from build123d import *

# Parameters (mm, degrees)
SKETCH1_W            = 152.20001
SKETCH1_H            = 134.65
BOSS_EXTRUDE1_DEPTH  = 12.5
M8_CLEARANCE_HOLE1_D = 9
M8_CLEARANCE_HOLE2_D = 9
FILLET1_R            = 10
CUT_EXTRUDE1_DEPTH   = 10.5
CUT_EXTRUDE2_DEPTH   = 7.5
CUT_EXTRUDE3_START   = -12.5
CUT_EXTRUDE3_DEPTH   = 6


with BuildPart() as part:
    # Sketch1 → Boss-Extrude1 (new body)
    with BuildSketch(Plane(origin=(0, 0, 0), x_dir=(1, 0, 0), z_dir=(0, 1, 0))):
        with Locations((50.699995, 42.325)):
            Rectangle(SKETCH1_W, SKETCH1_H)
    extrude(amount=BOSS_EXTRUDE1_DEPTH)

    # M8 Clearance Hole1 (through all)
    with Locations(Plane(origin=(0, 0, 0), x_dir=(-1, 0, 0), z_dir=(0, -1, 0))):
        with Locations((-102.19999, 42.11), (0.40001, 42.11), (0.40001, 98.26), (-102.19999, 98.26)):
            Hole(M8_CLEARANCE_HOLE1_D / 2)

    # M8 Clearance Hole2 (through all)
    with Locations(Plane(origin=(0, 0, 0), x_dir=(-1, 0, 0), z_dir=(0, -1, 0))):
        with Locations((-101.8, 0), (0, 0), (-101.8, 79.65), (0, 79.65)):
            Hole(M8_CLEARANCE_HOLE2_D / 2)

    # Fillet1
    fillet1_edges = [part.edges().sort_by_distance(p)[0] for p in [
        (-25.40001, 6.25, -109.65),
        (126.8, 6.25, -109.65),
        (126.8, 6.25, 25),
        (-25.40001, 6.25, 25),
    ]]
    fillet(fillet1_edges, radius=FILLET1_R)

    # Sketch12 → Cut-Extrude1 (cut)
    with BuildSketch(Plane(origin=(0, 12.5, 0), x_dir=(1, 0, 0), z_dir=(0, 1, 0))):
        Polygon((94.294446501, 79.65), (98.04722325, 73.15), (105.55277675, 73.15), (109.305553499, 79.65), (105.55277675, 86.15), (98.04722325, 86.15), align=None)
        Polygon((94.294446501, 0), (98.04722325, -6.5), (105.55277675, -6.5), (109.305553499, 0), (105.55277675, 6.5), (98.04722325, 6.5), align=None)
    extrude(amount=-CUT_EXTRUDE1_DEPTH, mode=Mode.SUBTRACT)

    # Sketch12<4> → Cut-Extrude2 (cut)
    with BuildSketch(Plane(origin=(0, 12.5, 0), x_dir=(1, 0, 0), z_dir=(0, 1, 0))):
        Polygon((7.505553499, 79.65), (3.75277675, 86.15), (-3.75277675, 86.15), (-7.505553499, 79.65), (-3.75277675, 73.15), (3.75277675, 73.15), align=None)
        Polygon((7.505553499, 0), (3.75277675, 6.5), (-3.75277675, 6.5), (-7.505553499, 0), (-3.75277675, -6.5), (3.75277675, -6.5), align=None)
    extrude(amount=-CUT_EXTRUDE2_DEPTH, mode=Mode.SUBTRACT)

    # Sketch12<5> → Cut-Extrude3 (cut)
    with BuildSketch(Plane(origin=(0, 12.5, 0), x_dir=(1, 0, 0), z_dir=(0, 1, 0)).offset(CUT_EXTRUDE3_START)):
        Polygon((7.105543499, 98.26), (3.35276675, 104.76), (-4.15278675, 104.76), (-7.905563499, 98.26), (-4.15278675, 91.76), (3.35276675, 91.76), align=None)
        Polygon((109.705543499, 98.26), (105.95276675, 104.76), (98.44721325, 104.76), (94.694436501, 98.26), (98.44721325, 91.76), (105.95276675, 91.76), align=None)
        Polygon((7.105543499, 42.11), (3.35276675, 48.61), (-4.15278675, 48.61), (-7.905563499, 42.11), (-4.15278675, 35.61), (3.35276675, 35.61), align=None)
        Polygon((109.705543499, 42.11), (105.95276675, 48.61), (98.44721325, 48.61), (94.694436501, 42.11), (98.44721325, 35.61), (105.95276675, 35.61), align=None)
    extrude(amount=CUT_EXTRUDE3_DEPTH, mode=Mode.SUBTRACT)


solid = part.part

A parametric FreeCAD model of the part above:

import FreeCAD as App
import Part
import Sketcher
Q = App.Units.Quantity


def edges_at(feature, points):
    """Names of the edges that pass closest to the given points."""
    edges = feature.Shape.Edges
    near = lambda p: min(range(len(edges)), key=lambda i: edges[i].distToShape(Part.Vertex(*p))[0])
    return sorted({f"Edge{near(p) + 1}" for p in points})

doc = App.newDocument("Part")
params = doc.addObject("Spreadsheet::Sheet", "Params")
for row, (alias, value) in enumerate([
    ("sketch1_height", "134.65 mm"),
    ("pad1_length", "12.5 mm"),
    ("sketch2_diameter", "9 mm"),
    ("hole_diameter", "9 mm"),
    ("sketch3_diameter", "9 mm"),
    ("hole2_diameter", "9 mm"),
    ("fillet_radius", "10 mm"),
    ("pocket1_length", "10.5 mm"),
    ("pocket2_length", "7.5 mm"),
    ("pocket3_length", "6 mm"),
], start=1):
    params.set(f"A{row}", alias)
    params.set(f"B{row}", "=" + value)
    params.setAlias(f"B{row}", alias)

body = doc.addObject("PartDesign::Body", "Body")

# Sketch on XZ plane
sketch1 = doc.addObject("Sketcher::SketchObject", "Sketch")
body.addObject(sketch1)
sketch1.AttachmentSupport = (doc.XZ_Plane, [""])
sketch1.MapMode = "FlatFace"
sketch1.addGeometry([
    Part.LineSegment(App.Vector(-25.40001, -109.65, 0), App.Vector(-25.40001, 25, 0)),
    Part.LineSegment(App.Vector(-25.40001, 25, 0), App.Vector(126.8, 25, 0)),
    Part.LineSegment(App.Vector(126.8, 25, 0), App.Vector(126.8, -109.65, 0)),
    Part.LineSegment(App.Vector(126.8, -109.65, 0), App.Vector(-25.40001, -109.65, 0)),
], False)
sketch1.addConstraint([
    Sketcher.Constraint("Coincident", 0, 2, 1, 1),
    Sketcher.Constraint("Coincident", 1, 2, 2, 1),
    Sketcher.Constraint("Coincident", 2, 2, 3, 1),
    Sketcher.Constraint("Coincident", 3, 2, 0, 1),
    Sketcher.Constraint("Vertical", 0),
    Sketcher.Constraint("Horizontal", 1),
    Sketcher.Constraint("Vertical", 2),
    Sketcher.Constraint("Horizontal", 3),
    Sketcher.Constraint("DistanceY", -1, 1, 0, 2, Q("25 mm")),
    Sketcher.Constraint("DistanceY", 0, 1, 0, 2, Q("134.65 mm")),
    Sketcher.Constraint("DistanceX", -1, 1, 1, 2, Q("126.8 mm")),
    Sketcher.Constraint("DistanceX", 1, 1, 1, 2, Q("152.20001 mm")),
])
sketch1.setExpression("Constraints[9]", "Params.sketch1_height")
pad1 = doc.addObject("PartDesign::Pad", "Pad")
body.addObject(pad1)
pad1.Profile = sketch1
pad1.setExpression("Length", "Params.pad1_length")
pad1.Reversed = True

# Sketch on XZ plane
sketch2 = doc.addObject("Sketcher::SketchObject", "Sketch001")
body.addObject(sketch2)
sketch2.AttachmentSupport = (doc.XZ_Plane, [""])
sketch2.MapMode = "FlatFace"
sketch2.addGeometry([
    Part.Circle(App.Vector(102.19999, -42.11, 0), App.Vector(0, 0, 1), 4.5),
    Part.Circle(App.Vector(-0.40001, -42.11, 0), App.Vector(0, 0, 1), 4.5),
    Part.Circle(App.Vector(-0.40001, -98.26, 0), App.Vector(0, 0, 1), 4.5),
    Part.Circle(App.Vector(102.19999, -98.26, 0), App.Vector(0, 0, 1), 4.5),
], False)
sketch2.addConstraint([
    Sketcher.Constraint("Equal", 0, 1),
    Sketcher.Constraint("Equal", 1, 2),
    Sketcher.Constraint("Equal", 2, 3),
    Sketcher.Constraint("Horizontal", 0, 3, 1, 3),
    Sketcher.Constraint("Horizontal", 2, 3, 3, 3),
    Sketcher.Constraint("Vertical", 1, 3, 2, 3),
    Sketcher.Constraint("Vertical", 0, 3, 3, 3),
    Sketcher.Constraint("Diameter", 0, Q("9 mm")),
    Sketcher.Constraint("DistanceX", 1, 3, 0, 3, Q("102.6 mm")),
    Sketcher.Constraint("DistanceY", 0, 3, -1, 1, Q("42.11 mm")),
    Sketcher.Constraint("DistanceY", 2, 3, -1, 1, Q("98.26 mm")),
    Sketcher.Constraint("DistanceX", -1, 1, 0, 3, Q("102.19999 mm")),
])
sketch2.setExpression("Constraints[7]", "Params.sketch2_diameter")
doc.recompute()
hole = doc.addObject("PartDesign::Hole", "Hole")
body.addObject(hole)
hole.Profile = sketch2
hole.ThreadType = "None"
hole.setExpression("Diameter", "Params.hole_diameter")
hole.DepthType = "ThroughAll"

# Sketch on XZ plane
sketch3 = doc.addObject("Sketcher::SketchObject", "Sketch002")
body.addObject(sketch3)
sketch3.AttachmentSupport = (doc.XZ_Plane, [""])
sketch3.MapMode = "FlatFace"
sketch3.addGeometry([
    Part.Circle(App.Vector(101.8, 0, 0), App.Vector(0, 0, 1), 4.5),
    Part.Circle(App.Vector(0, 0, 0), App.Vector(0, 0, 1), 4.5),
    Part.Circle(App.Vector(101.8, -79.65, 0), App.Vector(0, 0, 1), 4.5),
    Part.Circle(App.Vector(0, -79.65, 0), App.Vector(0, 0, 1), 4.5),
], False)
sketch3.addConstraint([
    Sketcher.Constraint("Coincident", 1, 3, -1, 1),
    Sketcher.Constraint("Equal", 0, 1),
    Sketcher.Constraint("Equal", 1, 2),
    Sketcher.Constraint("Equal", 2, 3),
    Sketcher.Constraint("PointOnObject", 0, 3, -1),
    Sketcher.Constraint("PointOnObject", 3, 3, -2),
    Sketcher.Constraint("Horizontal", 2, 3, 3, 3),
    Sketcher.Constraint("Vertical", 0, 3, 2, 3),
    Sketcher.Constraint("Diameter", 0, Q("9 mm")),
    Sketcher.Constraint("DistanceX", -1, 1, 0, 3, Q("101.8 mm")),
    Sketcher.Constraint("DistanceY", 2, 3, -1, 1, Q("79.65 mm")),
])
sketch3.setExpression("Constraints[8]", "Params.sketch3_diameter")
doc.recompute()
hole2 = doc.addObject("PartDesign::Hole", "Hole001")
body.addObject(hole2)
hole2.Profile = sketch3
hole2.ThreadType = "None"
hole2.setExpression("Diameter", "Params.hole2_diameter")
hole2.DepthType = "ThroughAll"
doc.recompute()

fillet = doc.addObject("PartDesign::Fillet", "Fillet")
body.addObject(fillet)
fillet.Base = (hole2, edges_at(hole2, [
    (-25.4, 6.25, -109.65),
    (126.8, 6.25, -109.65),
    (126.8, 6.25, 25),
    (-25.4, 6.25, 25),
]))
fillet.setExpression("Radius", "Params.fillet_radius")

# Sketch on XZ plane
sketch4 = doc.addObject("Sketcher::SketchObject", "Sketch003")
body.addObject(sketch4)
sketch4.AttachmentSupport = (doc.XZ_Plane, [""])
sketch4.MapMode = "FlatFace"
sketch4.AttachmentOffset = App.Placement(App.Vector(0, 0, -12.5), App.Rotation())
sketch4.addGeometry([
    Part.LineSegment(App.Vector(94.294447, -79.65, 0), App.Vector(98.047223, -73.15, 0)),  # 0
    Part.LineSegment(App.Vector(98.047223, -73.15, 0), App.Vector(105.552777, -73.15, 0)),  # 1
    Part.LineSegment(App.Vector(105.552777, -73.15, 0), App.Vector(109.305553, -79.65, 0)),  # 2
    Part.LineSegment(App.Vector(109.305553, -79.65, 0), App.Vector(105.552777, -86.15, 0)),  # 3
    Part.LineSegment(App.Vector(105.552777, -86.15, 0), App.Vector(98.047223, -86.15, 0)),  # 4
    Part.LineSegment(App.Vector(98.047223, -86.15, 0), App.Vector(94.294447, -79.65, 0)),  # 5
    Part.LineSegment(App.Vector(94.294447, 0, 0), App.Vector(98.047223, 6.5, 0)),  # 6
    Part.LineSegment(App.Vector(98.047223, 6.5, 0), App.Vector(105.552777, 6.5, 0)),  # 7
    Part.LineSegment(App.Vector(105.552777, 6.5, 0), App.Vector(109.305553, 0, 0)),  # 8
    Part.LineSegment(App.Vector(109.305553, 0, 0), App.Vector(105.552777, -6.5, 0)),  # 9
    Part.LineSegment(App.Vector(105.552777, -6.5, 0), App.Vector(98.047223, -6.5, 0)),  # 10
    Part.LineSegment(App.Vector(98.047223, -6.5, 0), App.Vector(94.294447, 0, 0)),  # 11
], False)
sketch4.addConstraint([
    Sketcher.Constraint("Coincident", 0, 2, 1, 1),
    Sketcher.Constraint("Coincident", 1, 2, 2, 1),
    Sketcher.Constraint("Coincident", 2, 2, 3, 1),
    Sketcher.Constraint("Coincident", 3, 2, 4, 1),
    Sketcher.Constraint("Coincident", 4, 2, 5, 1),
    Sketcher.Constraint("Coincident", 5, 2, 0, 1),
    Sketcher.Constraint("Coincident", 6, 2, 7, 1),
    Sketcher.Constraint("Coincident", 7, 2, 8, 1),
    Sketcher.Constraint("Coincident", 8, 2, 9, 1),
    Sketcher.Constraint("Coincident", 9, 2, 10, 1),
    Sketcher.Constraint("Coincident", 10, 2, 11, 1),
    Sketcher.Constraint("Coincident", 11, 2, 6, 1),
    Sketcher.Constraint("Horizontal", 1),
    Sketcher.Constraint("Horizontal", 4),
    Sketcher.Constraint("Horizontal", 7),
    Sketcher.Constraint("Horizontal", 10),
    Sketcher.Constraint("Symmetric", 7, 2, 9, 2, -1),
    Sketcher.Constraint("PointOnObject", 8, 2, -1),
    Sketcher.Constraint("PointOnObject", 11, 2, -1),
    Sketcher.Constraint("Parallel", 0, 3),
    Sketcher.Constraint("Parallel", 2, 5),
    Sketcher.Constraint("Parallel", 3, 6),
    Sketcher.Constraint("Parallel", 5, 8),
    Sketcher.Constraint("Parallel", 6, 9),
    Sketcher.Constraint("Parallel", 8, 11),
    Sketcher.Constraint("Horizontal", 2, 2, 5, 2),
    Sketcher.Constraint("Vertical", 1, 2, 3, 2),
    Sketcher.Constraint("Vertical", 4, 2, 6, 2),
    Sketcher.Constraint("Vertical", 3, 2, 7, 2),
    Sketcher.Constraint("Vertical", 2, 2, 8, 2),
    Sketcher.Constraint("Angle", 0, Q("60 deg")),
    Sketcher.Constraint("DistanceY", 3, 2, 1, 2, Q("13 mm")),
    Sketcher.Constraint("DistanceY", 0, 2, -1, 1, Q("73.15 mm")),
    Sketcher.Constraint("DistanceX", 1, 1, 1, 2, Q("7.505554 mm")),
    Sketcher.Constraint("DistanceX", -1, 1, 0, 2, Q("98.047223 mm")),
])
pocket1 = doc.addObject("PartDesign::Pocket", "Pocket")
body.addObject(pocket1)
pocket1.Profile = sketch4
pocket1.setExpression("Length", "Params.pocket1_length")
pocket1.Reversed = True

# Sketch on XZ plane
sketch5 = doc.addObject("Sketcher::SketchObject", "Sketch004")
body.addObject(sketch5)
sketch5.AttachmentSupport = (doc.XZ_Plane, [""])
sketch5.MapMode = "FlatFace"
sketch5.AttachmentOffset = App.Placement(App.Vector(0, 0, -12.5), App.Rotation())
sketch5.addGeometry([
    Part.LineSegment(App.Vector(7.505553, -79.65, 0), App.Vector(3.752777, -86.15, 0)),  # 0
    Part.LineSegment(App.Vector(3.752777, -86.15, 0), App.Vector(-3.752777, -86.15, 0)),  # 1
    Part.LineSegment(App.Vector(-3.752777, -86.15, 0), App.Vector(-7.505553, -79.65, 0)),  # 2
    Part.LineSegment(App.Vector(-7.505553, -79.65, 0), App.Vector(-3.752777, -73.15, 0)),  # 3
    Part.LineSegment(App.Vector(-3.752777, -73.15, 0), App.Vector(3.752777, -73.15, 0)),  # 4
    Part.LineSegment(App.Vector(3.752777, -73.15, 0), App.Vector(7.505553, -79.65, 0)),  # 5
    Part.LineSegment(App.Vector(7.505553, 0, 0), App.Vector(3.752777, -6.5, 0)),  # 6
    Part.LineSegment(App.Vector(3.752777, -6.5, 0), App.Vector(-3.752777, -6.5, 0)),  # 7
    Part.LineSegment(App.Vector(-3.752777, -6.5, 0), App.Vector(-7.505553, 0, 0)),  # 8
    Part.LineSegment(App.Vector(-7.505553, 0, 0), App.Vector(-3.752777, 6.5, 0)),  # 9
    Part.LineSegment(App.Vector(-3.752777, 6.5, 0), App.Vector(3.752777, 6.5, 0)),  # 10
    Part.LineSegment(App.Vector(3.752777, 6.5, 0), App.Vector(7.505553, 0, 0)),  # 11
], False)
sketch5.addConstraint([
    Sketcher.Constraint("Coincident", 0, 2, 1, 1),
    Sketcher.Constraint("Coincident", 1, 2, 2, 1),
    Sketcher.Constraint("Coincident", 2, 2, 3, 1),
    Sketcher.Constraint("Coincident", 3, 2, 4, 1),
    Sketcher.Constraint("Coincident", 4, 2, 5, 1),
    Sketcher.Constraint("Coincident", 5, 2, 0, 1),
    Sketcher.Constraint("Coincident", 6, 2, 7, 1),
    Sketcher.Constraint("Coincident", 7, 2, 8, 1),
    Sketcher.Constraint("Coincident", 8, 2, 9, 1),
    Sketcher.Constraint("Coincident", 9, 2, 10, 1),
    Sketcher.Constraint("Coincident", 10, 2, 11, 1),
    Sketcher.Constraint("Coincident", 11, 2, 6, 1),
    Sketcher.Constraint("Horizontal", 1),
    Sketcher.Constraint("Horizontal", 4),
    Sketcher.Constraint("Horizontal", 7),
    Sketcher.Constraint("Horizontal", 10),
    Sketcher.Constraint("Symmetric", 6, 2, 9, 2, -1, 1),
    Sketcher.Constraint("Symmetric", 8, 2, 11, 2, -1, 1),
    Sketcher.Constraint("Symmetric", 2, 2, 5, 2, -2),
    Sketcher.Constraint("PointOnObject", 8, 2, -1),
    Sketcher.Constraint("Parallel", 0, 3),
    Sketcher.Constraint("Parallel", 2, 5),
    Sketcher.Constraint("Parallel", 3, 6),
    Sketcher.Constraint("Parallel", 5, 8),
    Sketcher.Constraint("Parallel", 8, 11),
    Sketcher.Constraint("Vertical", 1, 2, 3, 2),
    Sketcher.Constraint("Vertical", 0, 2, 4, 2),
    Sketcher.Constraint("Vertical", 4, 2, 6, 2),
    Sketcher.Constraint("Vertical", 2, 2, 8, 2),
    Sketcher.Constraint("Angle", 0, Q("-120 deg")),
    Sketcher.Constraint("DistanceY", 1, 2, 3, 2, Q("13 mm")),
    Sketcher.Constraint("DistanceY", 0, 2, -1, 1, Q("86.15 mm")),
    Sketcher.Constraint("DistanceX", 1, 2, 1, 1, Q("7.505554 mm")),
])
pocket2 = doc.addObject("PartDesign::Pocket", "Pocket001")
body.addObject(pocket2)
pocket2.Profile = sketch5
pocket2.setExpression("Length", "Params.pocket2_length")
pocket2.Reversed = True

# Sketch on XZ plane
sketch6 = doc.addObject("Sketcher::SketchObject", "Sketch005")
body.addObject(sketch6)
sketch6.AttachmentSupport = (doc.XZ_Plane, [""])
sketch6.MapMode = "FlatFace"
sketch6.addGeometry([
    Part.LineSegment(App.Vector(7.105543, -98.26, 0), App.Vector(3.352767, -104.76, 0)),  # 0
    Part.LineSegment(App.Vector(3.352767, -104.76, 0), App.Vector(-4.152787, -104.76, 0)),  # 1
    Part.LineSegment(App.Vector(-4.152787, -104.76, 0), App.Vector(-7.905563, -98.26, 0)),  # 2
    Part.LineSegment(App.Vector(-7.905563, -98.26, 0), App.Vector(-4.152787, -91.76, 0)),  # 3
    Part.LineSegment(App.Vector(-4.152787, -91.76, 0), App.Vector(3.352767, -91.76, 0)),  # 4
    Part.LineSegment(App.Vector(3.352767, -91.76, 0), App.Vector(7.105543, -98.26, 0)),  # 5
    Part.LineSegment(App.Vector(109.705543, -98.26, 0), App.Vector(105.952767, -104.76, 0)),  # 6
    Part.LineSegment(App.Vector(105.952767, -104.76, 0), App.Vector(98.447213, -104.76, 0)),  # 7
    Part.LineSegment(App.Vector(98.447213, -104.76, 0), App.Vector(94.694437, -98.26, 0)),  # 8
    Part.LineSegment(App.Vector(94.694437, -98.26, 0), App.Vector(98.447213, -91.76, 0)),  # 9
    Part.LineSegment(App.Vector(98.447213, -91.76, 0), App.Vector(105.952767, -91.76, 0)),  # 10
    Part.LineSegment(App.Vector(105.952767, -91.76, 0), App.Vector(109.705543, -98.26, 0)),  # 11
    Part.LineSegment(App.Vector(7.105543, -42.11, 0), App.Vector(3.352767, -48.61, 0)),  # 12
    Part.LineSegment(App.Vector(3.352767, -48.61, 0), App.Vector(-4.152787, -48.61, 0)),  # 13
    Part.LineSegment(App.Vector(-4.152787, -48.61, 0), App.Vector(-7.905563, -42.11, 0)),  # 14
    Part.LineSegment(App.Vector(-7.905563, -42.11, 0), App.Vector(-4.152787, -35.61, 0)),  # 15
    Part.LineSegment(App.Vector(-4.152787, -35.61, 0), App.Vector(3.352767, -35.61, 0)),  # 16
    Part.LineSegment(App.Vector(3.352767, -35.61, 0), App.Vector(7.105543, -42.11, 0)),  # 17
    Part.LineSegment(App.Vector(109.705543, -42.11, 0), App.Vector(105.952767, -48.61, 0)),  # 18
    Part.LineSegment(App.Vector(105.952767, -48.61, 0), App.Vector(98.447213, -48.61, 0)),  # 19
    Part.LineSegment(App.Vector(98.447213, -48.61, 0), App.Vector(94.694437, -42.11, 0)),  # 20
    Part.LineSegment(App.Vector(94.694437, -42.11, 0), App.Vector(98.447213, -35.61, 0)),  # 21
    Part.LineSegment(App.Vector(98.447213, -35.61, 0), App.Vector(105.952767, -35.61, 0)),  # 22
    Part.LineSegment(App.Vector(105.952767, -35.61, 0), App.Vector(109.705543, -42.11, 0)),  # 23
], False)
sketch6.addConstraint([
    Sketcher.Constraint("Coincident", 0, 2, 1, 1),
    Sketcher.Constraint("Coincident", 1, 2, 2, 1),
    Sketcher.Constraint("Coincident", 2, 2, 3, 1),
    Sketcher.Constraint("Coincident", 3, 2, 4, 1),
    Sketcher.Constraint("Coincident", 4, 2, 5, 1),
    Sketcher.Constraint("Coincident", 5, 2, 0, 1),
    Sketcher.Constraint("Coincident", 6, 2, 7, 1),
    Sketcher.Constraint("Coincident", 7, 2, 8, 1),
    Sketcher.Constraint("Coincident", 8, 2, 9, 1),
    Sketcher.Constraint("Coincident", 9, 2, 10, 1),
    Sketcher.Constraint("Coincident", 10, 2, 11, 1),
    Sketcher.Constraint("Coincident", 11, 2, 6, 1),
    Sketcher.Constraint("Coincident", 12, 2, 13, 1),
    Sketcher.Constraint("Coincident", 13, 2, 14, 1),
    Sketcher.Constraint("Coincident", 14, 2, 15, 1),
    Sketcher.Constraint("Coincident", 15, 2, 16, 1),
    Sketcher.Constraint("Coincident", 16, 2, 17, 1),
    Sketcher.Constraint("Coincident", 17, 2, 12, 1),
    Sketcher.Constraint("Coincident", 18, 2, 19, 1),
    Sketcher.Constraint("Coincident", 19, 2, 20, 1),
    Sketcher.Constraint("Coincident", 20, 2, 21, 1),
    Sketcher.Constraint("Coincident", 21, 2, 22, 1),
    Sketcher.Constraint("Coincident", 22, 2, 23, 1),
    Sketcher.Constraint("Coincident", 23, 2, 18, 1),
    Sketcher.Constraint("Horizontal", 1),
    Sketcher.Constraint("Horizontal", 4),
    Sketcher.Constraint("Horizontal", 7),
    Sketcher.Constraint("Horizontal", 10),
    Sketcher.Constraint("Horizontal", 13),
    Sketcher.Constraint("Horizontal", 16),
    Sketcher.Constraint("Horizontal", 19),
    Sketcher.Constraint("Horizontal", 22),
    Sketcher.Constraint("Parallel", 0, 3),
    Sketcher.Constraint("Parallel", 2, 5),
    Sketcher.Constraint("Parallel", 3, 6),
    Sketcher.Constraint("Parallel", 5, 8),
    Sketcher.Constraint("Parallel", 6, 9),
    Sketcher.Constraint("Parallel", 8, 11),
    Sketcher.Constraint("Parallel", 9, 12),
    Sketcher.Constraint("Parallel", 11, 14),
    Sketcher.Constraint("Parallel", 12, 15),
    Sketcher.Constraint("Parallel", 14, 17),
    Sketcher.Constraint("Parallel", 15, 18),
    Sketcher.Constraint("Parallel", 17, 20),
    Sketcher.Constraint("Parallel", 18, 21),
    Sketcher.Constraint("Parallel", 20, 23),
    Sketcher.Constraint("Horizontal", 2, 2, 5, 2),
    Sketcher.Constraint("Horizontal", 1, 2, 6, 2),
    Sketcher.Constraint("Horizontal", 5, 2, 8, 2),
    Sketcher.Constraint("Horizontal", 4, 2, 9, 2),
    Sketcher.Constraint("Horizontal", 8, 2, 11, 2),
    Sketcher.Constraint("Horizontal", 14, 2, 17, 2),
    Sketcher.Constraint("Horizontal", 13, 2, 18, 2),
    Sketcher.Constraint("Horizontal", 17, 2, 20, 2),
    Sketcher.Constraint("Horizontal", 16, 2, 21, 2),
    Sketcher.Constraint("Horizontal", 20, 2, 23, 2),
    Sketcher.Constraint("Vertical", 1, 2, 3, 2),
    Sketcher.Constraint("Vertical", 0, 2, 4, 2),
    Sketcher.Constraint("Vertical", 4, 2, 12, 2),
    Sketcher.Constraint("Vertical", 3, 2, 13, 2),
    Sketcher.Constraint("Vertical", 2, 2, 14, 2),
    Sketcher.Constraint("Vertical", 13, 2, 15, 2),
    Sketcher.Constraint("Vertical", 10, 2, 18, 2),
    Sketcher.Constraint("Vertical", 9, 2, 19, 2),
    Sketcher.Constraint("Equal", 4, 7),
    Sketcher.Constraint("Angle", 0, Q("-120 deg")),
    Sketcher.Constraint("DistanceY", 1, 2, 3, 2, Q("13 mm")),
    Sketcher.Constraint("DistanceX", 0, 2, 6, 2, Q("102.6 mm")),
    Sketcher.Constraint("DistanceY", 0, 2, -1, 1, Q("104.76 mm")),
    Sketcher.Constraint("DistanceY", 12, 2, -1, 1, Q("48.61 mm")),
    Sketcher.Constraint("DistanceX", 1, 2, 1, 1, Q("7.505553 mm")),
    Sketcher.Constraint("DistanceX", -1, 1, 0, 2, Q("3.352767 mm")),
])
pocket3 = doc.addObject("PartDesign::Pocket", "Pocket002")
body.addObject(pocket3)
pocket3.Profile = sketch6
pocket3.setExpression("Length", "Params.pocket3_length")

doc.recompute()
